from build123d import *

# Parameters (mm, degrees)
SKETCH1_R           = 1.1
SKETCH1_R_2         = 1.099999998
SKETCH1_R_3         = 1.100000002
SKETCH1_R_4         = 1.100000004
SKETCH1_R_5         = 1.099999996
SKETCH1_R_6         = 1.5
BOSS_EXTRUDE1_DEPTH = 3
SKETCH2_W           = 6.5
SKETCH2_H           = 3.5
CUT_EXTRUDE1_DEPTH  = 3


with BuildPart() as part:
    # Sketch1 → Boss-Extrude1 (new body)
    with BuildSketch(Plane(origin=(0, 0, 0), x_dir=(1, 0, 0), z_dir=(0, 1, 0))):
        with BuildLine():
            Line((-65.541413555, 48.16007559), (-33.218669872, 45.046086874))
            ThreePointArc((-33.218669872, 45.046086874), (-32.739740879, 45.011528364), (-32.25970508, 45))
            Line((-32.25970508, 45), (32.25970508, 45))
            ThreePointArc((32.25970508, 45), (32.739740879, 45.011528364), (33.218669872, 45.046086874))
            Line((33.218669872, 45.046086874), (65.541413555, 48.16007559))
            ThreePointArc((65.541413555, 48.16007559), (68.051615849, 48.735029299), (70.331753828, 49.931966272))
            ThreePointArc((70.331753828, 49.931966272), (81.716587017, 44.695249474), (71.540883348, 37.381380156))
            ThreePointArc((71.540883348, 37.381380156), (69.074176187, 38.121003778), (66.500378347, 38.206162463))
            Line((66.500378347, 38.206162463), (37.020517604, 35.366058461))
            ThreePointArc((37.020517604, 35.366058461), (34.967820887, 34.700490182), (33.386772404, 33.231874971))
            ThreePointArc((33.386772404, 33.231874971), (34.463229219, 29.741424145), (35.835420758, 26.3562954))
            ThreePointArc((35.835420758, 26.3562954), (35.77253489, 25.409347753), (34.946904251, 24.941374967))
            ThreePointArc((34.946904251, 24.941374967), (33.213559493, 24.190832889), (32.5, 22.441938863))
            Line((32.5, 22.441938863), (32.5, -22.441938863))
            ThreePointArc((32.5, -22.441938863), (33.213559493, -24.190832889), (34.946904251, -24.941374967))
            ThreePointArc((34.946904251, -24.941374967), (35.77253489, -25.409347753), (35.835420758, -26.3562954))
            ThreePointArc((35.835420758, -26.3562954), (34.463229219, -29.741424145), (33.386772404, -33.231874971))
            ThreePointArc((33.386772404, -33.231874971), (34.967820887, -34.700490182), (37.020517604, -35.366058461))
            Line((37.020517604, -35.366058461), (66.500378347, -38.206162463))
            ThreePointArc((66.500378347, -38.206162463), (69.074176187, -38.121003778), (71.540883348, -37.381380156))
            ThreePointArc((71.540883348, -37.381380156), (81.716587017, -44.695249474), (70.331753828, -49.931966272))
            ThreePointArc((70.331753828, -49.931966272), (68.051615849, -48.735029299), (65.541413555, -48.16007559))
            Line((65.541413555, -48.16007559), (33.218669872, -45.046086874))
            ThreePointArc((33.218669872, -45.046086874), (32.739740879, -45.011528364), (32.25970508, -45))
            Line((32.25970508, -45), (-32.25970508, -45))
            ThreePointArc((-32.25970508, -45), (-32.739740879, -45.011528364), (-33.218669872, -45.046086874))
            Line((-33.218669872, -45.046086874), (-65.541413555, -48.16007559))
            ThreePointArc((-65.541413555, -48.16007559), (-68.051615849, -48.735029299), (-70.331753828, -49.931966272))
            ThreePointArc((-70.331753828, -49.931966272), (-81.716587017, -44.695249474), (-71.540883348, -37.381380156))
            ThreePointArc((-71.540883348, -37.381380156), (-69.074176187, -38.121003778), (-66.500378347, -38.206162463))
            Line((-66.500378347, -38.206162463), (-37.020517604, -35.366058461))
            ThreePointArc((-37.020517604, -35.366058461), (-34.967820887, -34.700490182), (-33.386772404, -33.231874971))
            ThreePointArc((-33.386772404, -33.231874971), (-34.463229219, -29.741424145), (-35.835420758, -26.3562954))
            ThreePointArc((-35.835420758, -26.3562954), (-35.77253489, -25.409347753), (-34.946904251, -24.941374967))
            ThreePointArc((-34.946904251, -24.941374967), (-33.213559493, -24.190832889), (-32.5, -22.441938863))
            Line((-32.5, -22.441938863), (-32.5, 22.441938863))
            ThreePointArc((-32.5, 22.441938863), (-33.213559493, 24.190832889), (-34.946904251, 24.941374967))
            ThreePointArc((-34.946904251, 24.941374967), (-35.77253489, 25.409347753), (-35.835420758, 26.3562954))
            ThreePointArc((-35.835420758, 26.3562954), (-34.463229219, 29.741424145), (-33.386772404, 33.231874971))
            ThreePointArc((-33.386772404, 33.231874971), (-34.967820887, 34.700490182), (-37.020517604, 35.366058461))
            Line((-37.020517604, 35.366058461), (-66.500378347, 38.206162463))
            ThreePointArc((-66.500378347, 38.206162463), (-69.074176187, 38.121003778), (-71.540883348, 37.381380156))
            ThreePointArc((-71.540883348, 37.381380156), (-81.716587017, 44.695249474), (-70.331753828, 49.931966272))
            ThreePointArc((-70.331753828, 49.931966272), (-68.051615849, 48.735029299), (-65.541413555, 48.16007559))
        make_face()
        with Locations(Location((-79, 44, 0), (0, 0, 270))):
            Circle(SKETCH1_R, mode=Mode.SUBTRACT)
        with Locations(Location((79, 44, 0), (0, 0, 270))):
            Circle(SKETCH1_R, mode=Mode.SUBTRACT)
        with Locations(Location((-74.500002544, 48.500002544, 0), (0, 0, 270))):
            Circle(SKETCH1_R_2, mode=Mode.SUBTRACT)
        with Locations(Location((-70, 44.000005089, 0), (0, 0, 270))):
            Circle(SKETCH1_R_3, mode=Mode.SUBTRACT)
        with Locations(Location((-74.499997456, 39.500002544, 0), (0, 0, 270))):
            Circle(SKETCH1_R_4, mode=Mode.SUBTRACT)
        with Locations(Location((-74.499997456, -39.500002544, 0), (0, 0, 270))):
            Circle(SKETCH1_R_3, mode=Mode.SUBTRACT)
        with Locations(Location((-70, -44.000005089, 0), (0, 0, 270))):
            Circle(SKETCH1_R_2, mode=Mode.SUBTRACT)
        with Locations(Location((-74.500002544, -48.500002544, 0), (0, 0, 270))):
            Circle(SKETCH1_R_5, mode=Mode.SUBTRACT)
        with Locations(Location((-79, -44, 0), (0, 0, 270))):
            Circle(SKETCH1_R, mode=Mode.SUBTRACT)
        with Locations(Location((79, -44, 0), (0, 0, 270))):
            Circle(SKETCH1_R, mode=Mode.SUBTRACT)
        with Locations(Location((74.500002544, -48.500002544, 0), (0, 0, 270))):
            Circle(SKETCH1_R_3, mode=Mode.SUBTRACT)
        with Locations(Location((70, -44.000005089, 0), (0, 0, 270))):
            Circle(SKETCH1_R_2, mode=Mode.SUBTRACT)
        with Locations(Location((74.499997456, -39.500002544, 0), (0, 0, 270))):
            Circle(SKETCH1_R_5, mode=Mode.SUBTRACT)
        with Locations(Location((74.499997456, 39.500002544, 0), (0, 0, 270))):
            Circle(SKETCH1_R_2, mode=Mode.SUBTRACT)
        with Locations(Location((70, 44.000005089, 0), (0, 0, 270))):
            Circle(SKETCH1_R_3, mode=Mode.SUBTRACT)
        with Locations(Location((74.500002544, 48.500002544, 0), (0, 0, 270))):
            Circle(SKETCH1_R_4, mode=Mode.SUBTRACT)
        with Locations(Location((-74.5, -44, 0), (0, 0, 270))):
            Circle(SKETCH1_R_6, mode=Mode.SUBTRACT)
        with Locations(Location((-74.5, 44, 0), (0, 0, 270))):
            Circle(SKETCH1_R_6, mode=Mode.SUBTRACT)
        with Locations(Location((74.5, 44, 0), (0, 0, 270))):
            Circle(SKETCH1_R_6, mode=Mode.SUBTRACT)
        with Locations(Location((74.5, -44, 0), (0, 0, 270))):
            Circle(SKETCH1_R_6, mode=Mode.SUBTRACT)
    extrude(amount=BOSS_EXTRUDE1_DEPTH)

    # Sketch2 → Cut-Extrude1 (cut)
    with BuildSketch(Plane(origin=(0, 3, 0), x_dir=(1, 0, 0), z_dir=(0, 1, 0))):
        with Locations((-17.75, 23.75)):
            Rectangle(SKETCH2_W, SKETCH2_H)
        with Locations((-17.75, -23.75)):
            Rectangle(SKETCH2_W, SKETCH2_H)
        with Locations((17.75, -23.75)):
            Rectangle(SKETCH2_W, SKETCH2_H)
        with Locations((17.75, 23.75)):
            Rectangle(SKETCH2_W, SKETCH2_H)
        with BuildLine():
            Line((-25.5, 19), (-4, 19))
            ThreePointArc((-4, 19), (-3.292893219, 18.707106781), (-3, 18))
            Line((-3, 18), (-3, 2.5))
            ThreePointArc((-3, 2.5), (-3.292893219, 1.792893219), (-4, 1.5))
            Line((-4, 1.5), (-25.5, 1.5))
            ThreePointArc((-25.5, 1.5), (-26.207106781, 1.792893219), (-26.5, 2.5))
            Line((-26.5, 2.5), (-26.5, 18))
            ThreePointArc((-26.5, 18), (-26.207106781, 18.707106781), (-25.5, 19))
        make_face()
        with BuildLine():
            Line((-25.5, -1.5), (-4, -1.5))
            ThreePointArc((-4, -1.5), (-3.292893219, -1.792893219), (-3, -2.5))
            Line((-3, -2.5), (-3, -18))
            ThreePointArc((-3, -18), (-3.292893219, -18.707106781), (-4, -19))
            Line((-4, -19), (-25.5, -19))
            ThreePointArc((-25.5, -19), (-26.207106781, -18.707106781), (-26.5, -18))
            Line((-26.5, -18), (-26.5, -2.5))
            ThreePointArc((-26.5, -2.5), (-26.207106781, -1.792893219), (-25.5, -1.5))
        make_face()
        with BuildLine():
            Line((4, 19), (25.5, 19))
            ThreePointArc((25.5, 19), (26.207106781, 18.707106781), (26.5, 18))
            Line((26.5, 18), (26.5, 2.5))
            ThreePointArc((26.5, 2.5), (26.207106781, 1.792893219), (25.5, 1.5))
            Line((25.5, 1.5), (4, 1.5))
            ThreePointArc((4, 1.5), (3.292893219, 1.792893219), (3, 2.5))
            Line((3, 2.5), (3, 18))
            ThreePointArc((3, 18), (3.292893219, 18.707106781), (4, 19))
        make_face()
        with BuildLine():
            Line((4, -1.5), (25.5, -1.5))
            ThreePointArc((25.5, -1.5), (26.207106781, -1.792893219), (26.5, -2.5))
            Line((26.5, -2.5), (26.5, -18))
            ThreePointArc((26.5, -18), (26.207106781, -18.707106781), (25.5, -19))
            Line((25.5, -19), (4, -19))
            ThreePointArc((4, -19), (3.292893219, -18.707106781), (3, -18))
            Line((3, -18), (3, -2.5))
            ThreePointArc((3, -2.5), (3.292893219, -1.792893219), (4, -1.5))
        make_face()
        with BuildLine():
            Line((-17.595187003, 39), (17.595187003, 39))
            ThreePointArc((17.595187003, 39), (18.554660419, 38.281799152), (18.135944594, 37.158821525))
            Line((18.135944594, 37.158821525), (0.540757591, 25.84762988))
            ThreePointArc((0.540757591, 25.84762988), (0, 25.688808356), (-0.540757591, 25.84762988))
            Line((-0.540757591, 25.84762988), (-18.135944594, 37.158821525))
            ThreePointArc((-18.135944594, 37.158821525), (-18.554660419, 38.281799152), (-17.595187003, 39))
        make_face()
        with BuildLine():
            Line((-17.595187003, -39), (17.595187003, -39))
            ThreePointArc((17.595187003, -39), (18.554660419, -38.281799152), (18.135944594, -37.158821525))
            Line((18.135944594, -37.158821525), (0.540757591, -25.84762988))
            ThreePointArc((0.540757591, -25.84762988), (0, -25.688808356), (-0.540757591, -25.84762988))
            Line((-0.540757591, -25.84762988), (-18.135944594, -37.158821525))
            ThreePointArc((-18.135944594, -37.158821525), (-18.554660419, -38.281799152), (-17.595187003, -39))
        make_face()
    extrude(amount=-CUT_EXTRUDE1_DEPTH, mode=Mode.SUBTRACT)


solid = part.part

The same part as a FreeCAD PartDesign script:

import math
import FreeCAD as App
import Part
import Sketcher

V = App.Vector
Q = App.Units.Quantity


def add_polygon(sketch, points):
    """Adds a closed chain of lines whose ends are joined by coincident constraints."""
    first, n = sketch.GeometryCount, len(points)
    for a, b in zip(points, points[1:] + points[:1]):
        sketch.addGeometry(Part.LineSegment(App.Vector(*a, 0), App.Vector(*b, 0)), False)
    for i in range(n):
        sketch.addConstraint(Sketcher.Constraint("Coincident", first + i, 2, first + (i + 1) % n, 1))

doc = App.newDocument("Part")
body = doc.addObject("PartDesign::Body", "Body")

sketch1 = doc.addObject("Sketcher::SketchObject", "Sketch")
body.addObject(sketch1)
sketch1.AttachmentSupport = (doc.XZ_Plane, [""])
sketch1.MapMode = "FlatFace"
sketch1.addGeometry([
    Part.LineSegment(V(-33.2, -45, 0), V(-65.5, -48.2, 0)),
    Part.ArcOfCircle(Part.Circle(V(-64.6, -58.1, 0), V(0, 0, 1), 10), math.radians(96), math.radians(125)),
    Part.ArcOfCircle(Part.Circle(V(-74.5, -44, 0), V(0, 0, 1), 7.2), math.radians(66), math.radians(305)),
    Part.ArcOfCircle(Part.Circle(V(-67.5, -28.3, 0), V(0, 0, 1), 10), math.radians(-114), math.radians(-84)),
    Part.LineSegment(V(-66.5, -38.2, 0), V(-37, -35.4, 0)),
    Part.ArcOfCircle(Part.Circle(V(-37.5, -30.4, 0), V(0, 0, 1), 5), math.radians(-84), math.radians(-35)),
    Part.ArcOfCircle(Part.Circle(V(-74.5, -44, 0), V(0, 0, 1), 42.5), math.radians(14.68), math.radians(24.53)),
    Part.ArcOfCircle(Part.Circle(V(-34.9, -25.9, 0), V(0, 0, 1), 1), math.radians(91), math.radians(205)),
    Part.ArcOfCircle(Part.Circle(V(-35, -22.4, 0), V(0, 0, 1), 2.5), math.radians(-89), math.radians(0)),
    Part.LineSegment(V(-32.5, -22.4, 0), V(-32.5, 22.4, 0)),
    Part.ArcOfCircle(Part.Circle(V(-35, 22.4, 0), V(0, 0, 1), 2.5), math.radians(0), math.radians(89)),
    Part.ArcOfCircle(Part.Circle(V(-34.9, 25.9, 0), V(0, 0, 1), 1), math.radians(155), math.radians(269)),
    Part.ArcOfCircle(Part.Circle(V(-74.5, 44, 0), V(0, 0, 1), 42.5), math.radians(-24.53), math.radians(-14.68)),
    Part.ArcOfCircle(Part.Circle(V(-37.5, 30.4, 0), V(0, 0, 1), 5), math.radians(35), math.radians(84)),
    Part.LineSegment(V(-37, 35.4, 0), V(-66.5, 38.2, 0)),
    Part.ArcOfCircle(Part.Circle(V(-67.5, 28.3, 0), V(0, 0, 1), 10), math.radians(84), math.radians(114)),
    Part.ArcOfCircle(Part.Circle(V(-74.5, 44, 0), V(0, 0, 1), 7.2), math.radians(55), math.radians(294)),
    Part.ArcOfCircle(Part.Circle(V(-64.6, 58.1, 0), V(0, 0, 1), 10), math.radians(-125), math.radians(-96)),
    Part.LineSegment(V(-65.5, 48.2, 0), V(-33.2, 45, 0)),
    Part.ArcOfCircle(Part.Circle(V(-32.3, 55, 0), V(0, 0, 1), 10), math.radians(-95.5), math.radians(-90)),
    Part.LineSegment(V(-32.3, 45, 0), V(32.3, 45, 0)),
    Part.ArcOfCircle(Part.Circle(V(32.3, 55, 0), V(0, 0, 1), 10), math.radians(-90), math.radians(-84.5)),
    Part.LineSegment(V(33.2, 45, 0), V(65.5, 48.2, 0)),
    Part.ArcOfCircle(Part.Circle(V(64.6, 58.1, 0), V(0, 0, 1), 10), math.radians(-84), math.radians(-55)),
    Part.ArcOfCircle(Part.Circle(V(74.5, 44, 0), V(0, 0, 1), 7.2), math.radians(-114), math.radians(125)),
    Part.ArcOfCircle(Part.Circle(V(67.5, 28.3, 0), V(0, 0, 1), 10), math.radians(66), math.radians(96)),
    Part.LineSegment(V(66.5, 38.2, 0), V(37, 35.4, 0)),
    Part.ArcOfCircle(Part.Circle(V(37.5, 30.4, 0), V(0, 0, 1), 5), math.radians(96), math.radians(145)),
    Part.ArcOfCircle(Part.Circle(V(74.5, 44, 0), V(0, 0, 1), 42.5), math.radians(-165.32), math.radians(-155.47)),
    Part.ArcOfCircle(Part.Circle(V(34.9, 25.9, 0), V(0, 0, 1), 1), math.radians(-89), math.radians(25)),
    Part.ArcOfCircle(Part.Circle(V(35, 22.4, 0), V(0, 0, 1), 2.5), math.radians(91), math.radians(180)),
    Part.LineSegment(V(32.5, 22.4, 0), V(32.5, -22.4, 0)),
    Part.ArcOfCircle(Part.Circle(V(35, -22.4, 0), V(0, 0, 1), 2.5), math.radians(180), math.radians(269)),
    Part.ArcOfCircle(Part.Circle(V(34.9, -25.9, 0), V(0, 0, 1), 1), math.radians(-25), math.radians(89)),
    Part.ArcOfCircle(Part.Circle(V(74.5, -44, 0), V(0, 0, 1), 42.5), math.radians(155.47), math.radians(165.32)),
    Part.ArcOfCircle(Part.Circle(V(37.5, -30.4, 0), V(0, 0, 1), 5), math.radians(-145), math.radians(-96)),
    Part.LineSegment(V(37, -35.4, 0), V(66.5, -38.2, 0)),
    Part.ArcOfCircle(Part.Circle(V(67.5, -28.3, 0), V(0, 0, 1), 10), math.radians(-96), math.radians(-66)),
    Part.ArcOfCircle(Part.Circle(V(74.5, -44, 0), V(0, 0, 1), 7.2), math.radians(-125), math.radians(114)),
    Part.ArcOfCircle(Part.Circle(V(64.6, -58.1, 0), V(0, 0, 1), 10), math.radians(55), math.radians(84)),
    Part.LineSegment(V(65.5, -48.2, 0), V(33.2, -45, 0)),
    Part.ArcOfCircle(Part.Circle(V(32.3, -55, 0), V(0, 0, 1), 10), math.radians(84.5), math.radians(90)),
    Part.LineSegment(V(32.3, -45, 0), V(-32.3, -45, 0)),
    Part.ArcOfCircle(Part.Circle(V(-32.3, -55, 0), V(0, 0, 1), 10), math.radians(90), math.radians(95.5)),
    Part.Circle(V(74.5, 48.5, 0), V(0, 0, 1), 1.1),
    Part.Circle(V(79, 44, 0), V(0, 0, 1), 1.1),
    Part.Circle(V(74.5, 44, 0), V(0, 0, 1), 1.5),
    Part.Circle(V(70, 44, 0), V(0, 0, 1), 1.1),
    Part.Circle(V(74.5, 39.5, 0), V(0, 0, 1), 1.1),
    Part.Circle(V(-70, 44, 0), V(0, 0, 1), 1.1),
    Part.Circle(V(-74.5, 48.5, 0), V(0, 0, 1), 1.1),
    Part.Circle(V(-74.5, 44, 0), V(0, 0, 1), 1.5),
    Part.Circle(V(-79, 44, 0), V(0, 0, 1), 1.1),
    Part.Circle(V(-74.5, 39.5, 0), V(0, 0, 1), 1.1),
    Part.Circle(V(74.5, -39.5, 0), V(0, 0, 1), 1.1),
    Part.Circle(V(79, -44, 0), V(0, 0, 1), 1.1),
    Part.Circle(V(74.5, -44, 0), V(0, 0, 1), 1.5),
    Part.Circle(V(74.5, -48.5, 0), V(0, 0, 1), 1.1),
    Part.Circle(V(70, -44, 0), V(0, 0, 1), 1.1),
    Part.Circle(V(-74.5, -39.5, 0), V(0, 0, 1), 1.1),
    Part.Circle(V(-70, -44, 0), V(0, 0, 1), 1.1),
    Part.Circle(V(-74.5, -44, 0), V(0, 0, 1), 1.5),
    Part.Circle(V(-79, -44, 0), V(0, 0, 1), 1.1),
    Part.Circle(V(-74.5, -48.5, 0), V(0, 0, 1), 1.1),
], False)
sketch1.addConstraint([
    Sketcher.Constraint("Tangent", 0, 2, 1, 1),
    Sketcher.Constraint("Tangent", 1, 2, 2, 2),
    Sketcher.Constraint("Tangent", 2, 1, 3, 1),
    Sketcher.Constraint("Tangent", 3, 2, 4, 1),
    Sketcher.Constraint("Tangent", 4, 2, 5, 1),
    Sketcher.Constraint("Coincident", 5, 2, 6, 1),
    Sketcher.Constraint("Tangent", 6, 2, 7, 2),
    Sketcher.Constraint("Tangent", 7, 1, 8, 1),
    Sketcher.Constraint("Tangent", 8, 2, 9, 1),
    Sketcher.Constraint("Tangent", 9, 2, 10, 1),
    Sketcher.Constraint("Tangent", 10, 2, 11, 2),
    Sketcher.Constraint("Tangent", 11, 1, 12, 1),
    Sketcher.Constraint("Coincident", 12, 2, 13, 1),
    Sketcher.Constraint("Tangent", 13, 2, 14, 1),
    Sketcher.Constraint("Tangent", 14, 2, 15, 1),
    Sketcher.Constraint("Tangent", 15, 2, 16, 2),
    Sketcher.Constraint("Tangent", 16, 1, 17, 1),
    Sketcher.Constraint("Tangent", 17, 2, 18, 1),
    Sketcher.Constraint("Tangent", 18, 2, 19, 1),
    Sketcher.Constraint("Tangent", 19, 2, 20, 1),
    Sketcher.Constraint("Tangent", 20, 2, 21, 1),
    Sketcher.Constraint("Tangent", 21, 2, 22, 1),
    Sketcher.Constraint("Tangent", 22, 2, 23, 1),
    Sketcher.Constraint("Tangent", 23, 2, 24, 2),
    Sketcher.Constraint("Tangent", 24, 1, 25, 1),
    Sketcher.Constraint("Tangent", 25, 2, 26, 1),
    Sketcher.Constraint("Tangent", 26, 2, 27, 1),
    Sketcher.Constraint("Coincident", 27, 2, 28, 1),
    Sketcher.Constraint("Tangent", 28, 2, 29, 2),
    Sketcher.Constraint("Tangent", 29, 1, 30, 1),
    Sketcher.Constraint("Tangent", 30, 2, 31, 1),
    Sketcher.Constraint("Tangent", 31, 2, 32, 1),
    Sketcher.Constraint("Tangent", 32, 2, 33, 2),
    Sketcher.Constraint("Tangent", 33, 1, 34, 1),
    Sketcher.Constraint("Coincident", 34, 2, 35, 1),
    Sketcher.Constraint("Tangent", 35, 2, 36, 1),
    Sketcher.Constraint("Tangent", 36, 2, 37, 1),
    Sketcher.Constraint("Tangent", 37, 2, 38, 2),
    Sketcher.Constraint("Tangent", 38, 1, 39, 1),
    Sketcher.Constraint("Tangent", 39, 2, 40, 1),
    Sketcher.Constraint("Tangent", 40, 2, 41, 1),
    Sketcher.Constraint("Tangent", 41, 2, 42, 1),
    Sketcher.Constraint("Tangent", 42, 2, 43, 1),
    Sketcher.Constraint("Tangent", 43, 2, 0, 1),
    Sketcher.Constraint("Vertical", 9),
    Sketcher.Constraint("Horizontal", 20),
    Sketcher.Constraint("Vertical", 31),
    Sketcher.Constraint("Horizontal", 42),
    Sketcher.Constraint("Coincident", 6, 3, 2, 3),
    Sketcher.Constraint("Coincident", 16, 3, 12, 3),
    Sketcher.Constraint("Coincident", 28, 3, 24, 3),
    Sketcher.Constraint("Coincident", 38, 3, 34, 3),
    Sketcher.Constraint("Coincident", 46, 3, 24, 3),
    Sketcher.Constraint("Coincident", 51, 3, 12, 3),
    Sketcher.Constraint("Coincident", 56, 3, 34, 3),
    Sketcher.Constraint("Coincident", 61, 3, 2, 3),
    Sketcher.Constraint("Equal", 1, 3),
    Sketcher.Constraint("Equal", 8, 10),
    Sketcher.Constraint("Equal", 7, 11),
    Sketcher.Constraint("Equal", 6, 12),
    Sketcher.Constraint("Equal", 5, 13),
    Sketcher.Constraint("Equal", 3, 15),
    Sketcher.Constraint("Equal", 2, 16),
    Sketcher.Constraint("Equal", 15, 17),
    Sketcher.Constraint("Equal", 17, 19),
    Sketcher.Constraint("Equal", 19, 21),
    Sketcher.Constraint("Equal", 21, 23),
    Sketcher.Constraint("Equal", 16, 24),
    Sketcher.Constraint("Equal", 23, 25),
    Sketcher.Constraint("Equal", 13, 27),
    Sketcher.Constraint("Equal", 12, 28),
    Sketcher.Constraint("Equal", 11, 29),
    Sketcher.Constraint("Equal", 10, 30),
    Sketcher.Constraint("Equal", 30, 32),
    Sketcher.Constraint("Equal", 29, 33),
    Sketcher.Constraint("Equal", 28, 34),
    Sketcher.Constraint("Equal", 27, 35),
    Sketcher.Constraint("Equal", 25, 37),
    Sketcher.Constraint("Equal", 24, 38),
    Sketcher.Constraint("Equal", 37, 39),
    Sketcher.Constraint("Equal", 39, 41),
    Sketcher.Constraint("Equal", 41, 43),
    Sketcher.Constraint("Equal", 44, 45),
    Sketcher.Constraint("Equal", 45, 47),
    Sketcher.Constraint("Equal", 47, 48),
    Sketcher.Constraint("Equal", 48, 49),
    Sketcher.Constraint("Equal", 49, 50),
    Sketcher.Constraint("Equal", 46, 51),
    Sketcher.Constraint("Equal", 50, 52),
    Sketcher.Constraint("Equal", 52, 53),
    Sketcher.Constraint("Equal", 53, 54),
    Sketcher.Constraint("Equal", 54, 55),
    Sketcher.Constraint("Equal", 51, 56),
    Sketcher.Constraint("Equal", 55, 57),
    Sketcher.Constraint("Equal", 57, 58),
    Sketcher.Constraint("Equal", 58, 59),
    Sketcher.Constraint("Equal", 59, 60),
    Sketcher.Constraint("Equal", 56, 61),
    Sketcher.Constraint("Equal", 60, 62),
    Sketcher.Constraint("Equal", 62, 63),
    Sketcher.Constraint("Symmetric", 1, 3, 23, 3, -1, 1),
    Sketcher.Constraint("Symmetric", 3, 3, 25, 3, -1, 1),
    Sketcher.Constraint("Symmetric", 5, 3, 27, 3, -1, 1),
    Sketcher.Constraint("Symmetric", 8, 3, 30, 3, -1, 1),
    Sketcher.Constraint("Symmetric", 11, 3, 33, 3, -1, 1),
    Sketcher.Constraint("Symmetric", 13, 3, 35, 3, -1, 1),
    Sketcher.Constraint("Symmetric", 15, 3, 37, 3, -1, 1),
    Sketcher.Constraint("Symmetric", 19, 3, 41, 3, -1, 1),
    Sketcher.Constraint("Symmetric", 53, 3, 54, 3, -1, 1),
    Sketcher.Constraint("Symmetric", 52, 3, 55, 3, -1, 1),
    Sketcher.Constraint("Symmetric", 50, 3, 57, 3, -1, 1),
    Sketcher.Constraint("Symmetric", 49, 3, 58, 3, -1, 1),
    Sketcher.Constraint("Symmetric", 48, 3, 59, 3, -1, 1),
    Sketcher.Constraint("Symmetric", 47, 3, 60, 3, -1, 1),
    Sketcher.Constraint("Symmetric", 45, 3, 62, 3, -1, 1),
    Sketcher.Constraint("Symmetric", 44, 3, 63, 3, -1, 1),
    Sketcher.Constraint("Symmetric", 17, 3, 23, 3, -2),
    Sketcher.Constraint("Symmetric", 15, 3, 25, 3, -2),
    Sketcher.Constraint("Symmetric", 13, 3, 27, 3, -2),
    Sketcher.Constraint("Symmetric", 47, 3, 49, 3, -2),
    Sketcher.Constraint("Symmetric", 44, 3, 50, 3, -2),
    Sketcher.Constraint("Symmetric", 45, 3, 52, 3, -2),
    Sketcher.Constraint("Symmetric", 48, 3, 53, 3, -2),
    Sketcher.Constraint("Symmetric", 0, 2, 39, 2, -2),
    Sketcher.Constraint("Parallel", 0, 4),
    Sketcher.Constraint("Parallel", 4, 22),
    Sketcher.Constraint("Horizontal", 11, 3, 29, 3),
    Sketcher.Constraint("Horizontal", 28, 3, 45, 3),
    Sketcher.Constraint("Diameter", 46, Q("3 mm")),
    Sketcher.Constraint("Radius", 1, Q("10 mm")),
    Sketcher.Constraint("Radius", 5, Q("5 mm")),
    Sketcher.Constraint("Radius", 7, Q("1 mm")),
    Sketcher.Constraint("Diameter", 44, Q("2.2 mm")),
    Sketcher.Constraint("Radius", 6, Q("42.5 mm")),
    Sketcher.Constraint("Radius", 8, Q("2.5 mm")),
    Sketcher.Constraint("Radius", 2, Q("7.25 mm")),
    Sketcher.Constraint("DistanceY", 2, 3, -1, 1, Q("44 mm")),
    Sketcher.Constraint("DistanceX", 8, 3, -1, 1, Q("35 mm")),
    Sketcher.Constraint("DistanceY", -1, 1, 19, 3, Q("55 mm")),
    Sketcher.Constraint("DistanceX", -1, 1, 45, 3, Q("79 mm")),
    Sketcher.Constraint("DistanceX", -1, 1, 47, 3, Q("70 mm")),
    Sketcher.Constraint("DistanceX", 2, 3, -1, 1, Q("74.5 mm")),
    Sketcher.Constraint("DistanceX", 5, 3, -1, 1, Q("37.5 mm")),
    Sketcher.Constraint("Distance", 0, Q("32.472399 mm")),
    Sketcher.Constraint("DistanceX", 20, 1, 20, 2, Q("64.51941 mm")),
    Sketcher.Constraint("DistanceY", 5, 3, -1, 1, Q("30.389102 mm")),
    Sketcher.Constraint("DistanceY", 9, 1, 9, 2, Q("44.883878 mm")),
    Sketcher.Constraint("DistanceX", -1, 1, 44, 3, Q("74.500003 mm")),
    Sketcher.Constraint("DistanceY", -1, 1, 44, 3, Q("48.500003 mm")),
    Sketcher.Constraint("DistanceY", -1, 1, 47, 3, Q("44.000005 mm")),
    Sketcher.Constraint("DistanceX", -1, 1, 48, 3, Q("74.499997 mm")),
    Sketcher.Constraint("DistanceY", -1, 1, 48, 3, Q("39.500003 mm")),
])
pad1 = doc.addObject("PartDesign::Pad", "Pad")
body.addObject(pad1)
pad1.Profile = sketch1
pad1.Length = 3
pad1.Reversed = True

sketch2 = doc.addObject("Sketcher::SketchObject", "Sketch001")
body.addObject(sketch2)
sketch2.AttachmentSupport = (doc.XZ_Plane, [""])
sketch2.MapMode = "FlatFace"
sketch2.AttachmentOffset = App.Placement(V(0, 0, -3), App.Rotation())
add_polygon(sketch2, [(-21, -25.5), (-21, -22), (-14.5, -22), (-14.5, -25.5)])
add_polygon(sketch2, [(-21, 22), (-21, 25.5), (-14.5, 25.5), (-14.5, 22)])
add_polygon(sketch2, [(14.5, 22), (14.5, 25.5), (21, 25.5), (21, 22)])
add_polygon(sketch2, [(14.5, -25.5), (14.5, -22), (21, -22), (21, -25.5)])
sketch2.addGeometry(Part.LineSegment(V(-4, -19, 0), V(-25.5, -19, 0)), False)
sketch2.addGeometry(Part.ArcOfCircle(Part.Circle(V(-25.5, -18, 0), V(0, 0, 1), 1), math.radians(-180), math.radians(-90)), False)
sketch2.addGeometry(Part.LineSegment(V(-26.5, -18, 0), V(-26.5, -2.5, 0)), False)
sketch2.addGeometry(Part.ArcOfCircle(Part.Circle(V(-25.5, -2.5, 0), V(0, 0, 1), 1), math.radians(90), math.radians(180)), False)
sketch2.addGeometry(Part.LineSegment(V(-25.5, -1.5, 0), V(-4, -1.5, 0)), False)
sketch2.addGeometry(Part.ArcOfCircle(Part.Circle(V(-4, -2.5, 0), V(0, 0, 1), 1), math.radians(0), math.radians(90)), False)
sketch2.addGeometry(Part.LineSegment(V(-3, -2.5, 0), V(-3, -18, 0)), False)
sketch2.addGeometry(Part.ArcOfCircle(Part.Circle(V(-4, -18, 0), V(0, 0, 1), 1), math.radians(-90), math.radians(0)), False)
sketch2.addGeometry(Part.LineSegment(V(-4, 1.5, 0), V(-25.5, 1.5, 0)), False)
sketch2.addGeometry(Part.ArcOfCircle(Part.Circle(V(-25.5, 2.5, 0), V(0, 0, 1), 1), math.radians(-180), math.radians(-90)), False)
sketch2.addGeometry(Part.LineSegment(V(-26.5, 2.5, 0), V(-26.5, 18, 0)), False)
sketch2.addGeometry(Part.ArcOfCircle(Part.Circle(V(-25.5, 18, 0), V(0, 0, 1), 1), math.radians(90), math.radians(180)), False)
sketch2.addGeometry(Part.LineSegment(V(-25.5, 19, 0), V(-4, 19, 0)), False)
sketch2.addGeometry(Part.ArcOfCircle(Part.Circle(V(-4, 18, 0), V(0, 0, 1), 1), math.radians(0), math.radians(90)), False)
sketch2.addGeometry(Part.LineSegment(V(-3, 18, 0), V(-3, 2.5, 0)), False)
sketch2.addGeometry(Part.ArcOfCircle(Part.Circle(V(-4, 2.5, 0), V(0, 0, 1), 1), math.radians(-90), math.radians(0)), False)
sketch2.addGeometry(Part.LineSegment(V(25.5, -19, 0), V(4, -19, 0)), False)
sketch2.addGeometry(Part.ArcOfCircle(Part.Circle(V(4, -18, 0), V(0, 0, 1), 1), math.radians(-180), math.radians(-90)), False)
sketch2.addGeometry(Part.LineSegment(V(3, -18, 0), V(3, -2.5, 0)), False)
sketch2.addGeometry(Part.ArcOfCircle(Part.Circle(V(4, -2.5, 0), V(0, 0, 1), 1), math.radians(90), math.radians(180)), False)
sketch2.addGeometry(Part.LineSegment(V(4, -1.5, 0), V(25.5, -1.5, 0)), False)
sketch2.addGeometry(Part.ArcOfCircle(Part.Circle(V(25.5, -2.5, 0), V(0, 0, 1), 1), math.radians(0), math.radians(90)), False)
sketch2.addGeometry(Part.LineSegment(V(26.5, -2.5, 0), V(26.5, -18, 0)), False)
sketch2.addGeometry(Part.ArcOfCircle(Part.Circle(V(25.5, -18, 0), V(0, 0, 1), 1), math.radians(-90), math.radians(0)), False)
sketch2.addGeometry(Part.LineSegment(V(25.5, 1.5, 0), V(4, 1.5, 0)), False)
sketch2.addGeometry(Part.ArcOfCircle(Part.Circle(V(4, 2.5, 0), V(0, 0, 1), 1), math.radians(-180), math.radians(-90)), False)
sketch2.addGeometry(Part.LineSegment(V(3, 2.5, 0), V(3, 18, 0)), False)
sketch2.addGeometry(Part.ArcOfCircle(Part.Circle(V(4, 18, 0), V(0, 0, 1), 1), math.radians(90), math.radians(180)), False)
sketch2.addGeometry(Part.LineSegment(V(4, 19, 0), V(25.5, 19, 0)), False)
sketch2.addGeometry(Part.ArcOfCircle(Part.Circle(V(25.5, 18, 0), V(0, 0, 1), 1), math.radians(0), math.radians(90)), False)
sketch2.addGeometry(Part.LineSegment(V(26.5, 18, 0), V(26.5, 2.5, 0)), False)
sketch2.addGeometry(Part.ArcOfCircle(Part.Circle(V(25.5, 2.5, 0), V(0, 0, 1), 1), math.radians(-90), math.radians(0)), False)
sketch2.addGeometry(Part.LineSegment(V(17.6, -39, 0), V(-17.6, -39, 0)), False)
sketch2.addGeometry(Part.ArcOfCircle(Part.Circle(V(-17.6, -38, 0), V(0, 0, 1), 1), math.radians(123), math.radians(270)), False)
sketch2.addGeometry(Part.LineSegment(V(-18.1, -37.2, 0), V(-0.5, -25.8, 0)), False)
sketch2.addGeometry(Part.ArcOfCircle(Part.Circle(V(0, -26.7, 0), V(0, 0, 1), 1), math.radians(57), math.radians(123)), False)
sketch2.addGeometry(Part.LineSegment(V(0.5, -25.8, 0), V(18.1, -37.2, 0)), False)
sketch2.addGeometry(Part.ArcOfCircle(Part.Circle(V(17.6, -38, 0), V(0, 0, 1), 1), math.radians(-90), math.radians(57)), False)
sketch2.addGeometry(Part.LineSegment(V(-17.6, 39, 0), V(17.6, 39, 0)), False)
sketch2.addGeometry(Part.ArcOfCircle(Part.Circle(V(17.6, 38, 0), V(0, 0, 1), 1), math.radians(-57), math.radians(90)), False)
sketch2.addGeometry(Part.LineSegment(V(18.1, 37.2, 0), V(0.5, 25.8, 0)), False)
sketch2.addGeometry(Part.ArcOfCircle(Part.Circle(V(0, 26.7, 0), V(0, 0, 1), 1), math.radians(-123), math.radians(-57)), False)
sketch2.addGeometry(Part.LineSegment(V(-0.5, 25.8, 0), V(-18.1, 37.2, 0)), False)
sketch2.addGeometry(Part.ArcOfCircle(Part.Circle(V(-17.6, 38, 0), V(0, 0, 1), 1), math.radians(90), math.radians(237)), False)
sketch2.addConstraint([
    Sketcher.Constraint("Tangent", 16, 2, 17, 2),
    Sketcher.Constraint("Tangent", 17, 1, 18, 1),
    Sketcher.Constraint("Tangent", 18, 2, 19, 2),
    Sketcher.Constraint("Tangent", 19, 1, 20, 1),
    Sketcher.Constraint("Tangent", 20, 2, 21, 2),
    Sketcher.Constraint("Tangent", 21, 1, 22, 1),
    Sketcher.Constraint("Tangent", 22, 2, 23, 2),
    Sketcher.Constraint("Tangent", 23, 1, 16, 1),
    Sketcher.Constraint("Tangent", 24, 2, 25, 2),
    Sketcher.Constraint("Tangent", 25, 1, 26, 1),
    Sketcher.Constraint("Tangent", 26, 2, 27, 2),
    Sketcher.Constraint("Tangent", 27, 1, 28, 1),
    Sketcher.Constraint("Tangent", 28, 2, 29, 2),
    Sketcher.Constraint("Tangent", 29, 1, 30, 1),
    Sketcher.Constraint("Tangent", 30, 2, 31, 2),
    Sketcher.Constraint("Tangent", 31, 1, 24, 1),
    Sketcher.Constraint("Tangent", 32, 2, 33, 2),
    Sketcher.Constraint("Tangent", 33, 1, 34, 1),
    Sketcher.Constraint("Tangent", 34, 2, 35, 2),
    Sketcher.Constraint("Tangent", 35, 1, 36, 1),
    Sketcher.Constraint("Tangent", 36, 2, 37, 2),
    Sketcher.Constraint("Tangent", 37, 1, 38, 1),
    Sketcher.Constraint("Tangent", 38, 2, 39, 2),
    Sketcher.Constraint("Tangent", 39, 1, 32, 1),
    Sketcher.Constraint("Tangent", 40, 2, 41, 2),
    Sketcher.Constraint("Tangent", 41, 1, 42, 1),
    Sketcher.Constraint("Tangent", 42, 2, 43, 2),
    Sketcher.Constraint("Tangent", 43, 1, 44, 1),
    Sketcher.Constraint("Tangent", 44, 2, 45, 2),
    Sketcher.Constraint("Tangent", 45, 1, 46, 1),
    Sketcher.Constraint("Tangent", 46, 2, 47, 2),
    Sketcher.Constraint("Tangent", 47, 1, 40, 1),
    Sketcher.Constraint("Tangent", 48, 2, 49, 2),
    Sketcher.Constraint("Tangent", 49, 1, 50, 1),
    Sketcher.Constraint("Tangent", 50, 2, 51, 2),
    Sketcher.Constraint("Tangent", 51, 1, 52, 1),
    Sketcher.Constraint("Tangent", 52, 2, 53, 2),
    Sketcher.Constraint("Tangent", 53, 1, 48, 1),
    Sketcher.Constraint("Tangent", 54, 2, 55, 2),
    Sketcher.Constraint("Tangent", 55, 1, 56, 1),
    Sketcher.Constraint("Tangent", 56, 2, 57, 2),
    Sketcher.Constraint("Tangent", 57, 1, 58, 1),
    Sketcher.Constraint("Tangent", 58, 2, 59, 2),
    Sketcher.Constraint("Tangent", 59, 1, 54, 1),
    Sketcher.Constraint("Vertical", 0),
    Sketcher.Constraint("Horizontal", 1),
    Sketcher.Constraint("Vertical", 2),
    Sketcher.Constraint("Horizontal", 3),
    Sketcher.Constraint("Vertical", 4),
    Sketcher.Constraint("Horizontal", 5),
    Sketcher.Constraint("Vertical", 6),
    Sketcher.Constraint("Horizontal", 7),
    Sketcher.Constraint("Vertical", 8),
    Sketcher.Constraint("Horizontal", 9),
    Sketcher.Constraint("Vertical", 10),
    Sketcher.Constraint("Horizontal", 11),
    Sketcher.Constraint("Vertical", 12),
    Sketcher.Constraint("Horizontal", 13),
    Sketcher.Constraint("Vertical", 14),
    Sketcher.Constraint("Horizontal", 15),
    Sketcher.Constraint("Horizontal", 16),
    Sketcher.Constraint("Vertical", 18),
    Sketcher.Constraint("Horizontal", 20),
    Sketcher.Constraint("Vertical", 22),
    Sketcher.Constraint("Horizontal", 24),
    Sketcher.Constraint("Vertical", 26),
    Sketcher.Constraint("Horizontal", 28),
    Sketcher.Constraint("Vertical", 30),
    Sketcher.Constraint("Horizontal", 32),
    Sketcher.Constraint("Vertical", 34),
    Sketcher.Constraint("Horizontal", 36),
    Sketcher.Constraint("Vertical", 38),
    Sketcher.Constraint("Horizontal", 40),
    Sketcher.Constraint("Vertical", 42),
    Sketcher.Constraint("Horizontal", 44),
    Sketcher.Constraint("Vertical", 46),
    Sketcher.Constraint("Horizontal", 48),
    Sketcher.Constraint("Horizontal", 54),
    Sketcher.Constraint("Equal", 17, 19),
    Sketcher.Constraint("Equal", 19, 21),
    Sketcher.Constraint("Equal", 21, 23),
    Sketcher.Constraint("Equal", 23, 25),
    Sketcher.Constraint("Equal", 25, 27),
    Sketcher.Constraint("Equal", 27, 29),
    Sketcher.Constraint("Equal", 29, 31),
    Sketcher.Constraint("Equal", 31, 33),
    Sketcher.Constraint("Equal", 33, 35),
    Sketcher.Constraint("Equal", 35, 37),
    Sketcher.Constraint("Equal", 37, 39),
    Sketcher.Constraint("Equal", 39, 41),
    Sketcher.Constraint("Equal", 41, 43),
    Sketcher.Constraint("Equal", 43, 45),
    Sketcher.Constraint("Equal", 45, 47),
    Sketcher.Constraint("Equal", 47, 49),
    Sketcher.Constraint("Equal", 49, 51),
    Sketcher.Constraint("Equal", 51, 53),
    Sketcher.Constraint("Equal", 53, 55),
    Sketcher.Constraint("Equal", 55, 57),
    Sketcher.Constraint("Equal", 57, 59),
    Sketcher.Constraint("Symmetric", 29, 3, 33, 3, -1, 1),
    Sketcher.Constraint("Symmetric", 25, 3, 37, 3, -1, 1),
    Sketcher.Constraint("Symmetric", 21, 3, 41, 3, -1, 1),
    Sketcher.Constraint("Symmetric", 17, 3, 45, 3, -1, 1),
    Sketcher.Constraint("Symmetric", 49, 3, 55, 3, -1, 1),
    Sketcher.Constraint("Symmetric", 51, 3, 57, 3, -1, 1),
    Sketcher.Constraint("Symmetric", 2, 2, 8, 2, -1, 1),
    Sketcher.Constraint("Symmetric", 0, 2, 10, 2, -1, 1),
    Sketcher.Constraint("Symmetric", 6, 2, 12, 2, -1, 1),
    Sketcher.Constraint("Symmetric", 4, 2, 14, 2, -1, 1),
    Sketcher.Constraint("Symmetric", 23, 3, 33, 3, -2),
    Sketcher.Constraint("Symmetric", 19, 3, 37, 3, -2),
    Sketcher.Constraint("Symmetric", 5, 2, 8, 2, -2),
    Sketcher.Constraint("Symmetric", 7, 2, 10, 2, -2),
    Sketcher.Constraint("Symmetric", 50, 2, 51, 1, -2),
    Sketcher.Constraint("Parallel", 52, 58),
    Sketcher.Constraint("Radius", 17, Q("1 mm")),
    Sketcher.Constraint("DistanceX", 1, 1, 1, 2, Q("6.5 mm")),
    Sketcher.Constraint("DistanceX", 16, 2, 16, 1, Q("21.5 mm")),
    Sketcher.Constraint("DistanceY", 0, 1, 0, 2, Q("3.5 mm")),
    Sketcher.Constraint("DistanceY", 18, 1, 18, 2, Q("15.5 mm")),
    Sketcher.Constraint("DistanceY", 17, 3, -1, 1, Q("18 mm")),
    Sketcher.Constraint("DistanceX", 21, 3, -1, 1, Q("4 mm")),
    Sketcher.Constraint("DistanceY", 49, 3, -1, 1, Q("38 mm")),
    Sketcher.Constraint("DistanceX", 0, 2, -1, 1, Q("21 mm")),
    Sketcher.Constraint("DistanceY", 0, 2, -1, 1, Q("22 mm")),
    Sketcher.Constraint("DistanceX", 48, 2, 48, 1, Q("35.190374 mm")),
    Sketcher.Constraint("DistanceY", 51, 3, -1, 1, Q("26.688808 mm")),
])
pocket1 = doc.addObject("PartDesign::Pocket", "Pocket")
body.addObject(pocket1)
pocket1.Profile = sketch2
pocket1.Length = 3
pocket1.Reversed = True

doc.recompute()
